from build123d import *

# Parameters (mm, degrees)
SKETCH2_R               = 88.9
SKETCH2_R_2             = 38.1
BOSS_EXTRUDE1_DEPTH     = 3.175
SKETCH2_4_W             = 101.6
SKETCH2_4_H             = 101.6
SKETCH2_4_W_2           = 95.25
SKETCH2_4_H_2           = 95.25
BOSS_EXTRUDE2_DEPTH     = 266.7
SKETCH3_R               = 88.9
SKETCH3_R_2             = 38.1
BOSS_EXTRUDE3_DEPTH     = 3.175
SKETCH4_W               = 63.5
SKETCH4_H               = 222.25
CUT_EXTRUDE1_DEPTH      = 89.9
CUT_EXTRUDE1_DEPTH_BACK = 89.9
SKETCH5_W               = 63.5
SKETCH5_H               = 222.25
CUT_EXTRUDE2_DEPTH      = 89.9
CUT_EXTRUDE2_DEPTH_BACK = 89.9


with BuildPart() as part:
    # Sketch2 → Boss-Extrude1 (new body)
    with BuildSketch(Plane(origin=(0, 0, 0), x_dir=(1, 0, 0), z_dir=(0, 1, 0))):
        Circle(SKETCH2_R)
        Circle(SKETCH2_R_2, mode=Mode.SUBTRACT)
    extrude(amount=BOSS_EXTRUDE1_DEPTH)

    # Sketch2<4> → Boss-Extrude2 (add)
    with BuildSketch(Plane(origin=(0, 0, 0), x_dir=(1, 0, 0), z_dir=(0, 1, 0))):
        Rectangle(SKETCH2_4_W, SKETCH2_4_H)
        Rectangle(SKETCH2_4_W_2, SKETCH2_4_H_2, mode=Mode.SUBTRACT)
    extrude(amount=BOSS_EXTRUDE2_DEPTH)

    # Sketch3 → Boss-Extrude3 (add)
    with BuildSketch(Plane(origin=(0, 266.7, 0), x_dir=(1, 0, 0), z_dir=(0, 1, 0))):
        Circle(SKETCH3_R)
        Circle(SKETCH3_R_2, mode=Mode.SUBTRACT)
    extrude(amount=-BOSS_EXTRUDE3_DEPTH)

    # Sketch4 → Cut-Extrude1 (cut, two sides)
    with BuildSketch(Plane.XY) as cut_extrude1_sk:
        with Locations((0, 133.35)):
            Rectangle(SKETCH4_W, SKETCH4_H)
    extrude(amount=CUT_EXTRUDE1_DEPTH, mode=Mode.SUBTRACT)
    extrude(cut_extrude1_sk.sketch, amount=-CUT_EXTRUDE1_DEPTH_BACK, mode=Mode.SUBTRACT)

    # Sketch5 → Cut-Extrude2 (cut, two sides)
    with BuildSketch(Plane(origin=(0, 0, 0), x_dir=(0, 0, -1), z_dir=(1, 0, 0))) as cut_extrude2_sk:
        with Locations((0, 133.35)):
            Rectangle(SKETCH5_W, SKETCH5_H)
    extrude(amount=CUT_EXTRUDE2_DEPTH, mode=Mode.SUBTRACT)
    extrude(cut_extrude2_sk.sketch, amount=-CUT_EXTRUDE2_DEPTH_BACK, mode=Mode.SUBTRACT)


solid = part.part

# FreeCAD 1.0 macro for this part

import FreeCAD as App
import Part
import Sketcher
from FreeCAD import Vector
Q = App.Units.Quantity

doc = App.newDocument("Part")
params = doc.addObject("Spreadsheet::Sheet", "Params")
for row, (alias, value) in enumerate([
    ("sketch1_diameter", "7 in"),
    ("sketch1_diameter2", "3 in"),
    ("pad1_length", "0.125 in"),
    ("sketch2_width", "4 in"),
    ("sketch2_width2", "3.75 in"),
    ("pad2_length", "10.5 in"),
    ("sketch3_diameter", "7 in"),
    ("sketch3_diameter2", "3 in"),
    ("pad3_length", "0.125 in"),
    ("sketch4_width", "2.5 in"),
    ("sketch4_height", "8.75 in"),
    ("sketch5_height", "2.5 in"),
    ("sketch5_width", "8.75 in"),
], start=1):
    params.set(f"A{row}", alias)
    params.set(f"B{row}", "=" + value)
    params.setAlias(f"B{row}", alias)

body = doc.addObject("PartDesign::Body", "Body")

# Sketch on XZ plane
sketch1 = body.newObject("Sketcher::SketchObject", "Sketch")
sketch1.AttachmentSupport = (doc.getObject("XZ_Plane"), [""])
sketch1.MapMode = "FlatFace"
sketch1.addGeometry([
    Part.Circle(Vector(0, 0, 0), Vector(0, 0, 1), 88.9),
    Part.Circle(Vector(0, 0, 0), Vector(0, 0, 1), 38.1),
], False)
sketch1.addConstraint([
    Sketcher.Constraint("Coincident", 0, 3, -1, 1),
    Sketcher.Constraint("Coincident", 1, 3, -1, 1),
    Sketcher.Constraint("Diameter", 0, Q("7 in")),
    Sketcher.Constraint("Diameter", 1, Q("3 in")),
])
sketch1.setExpression("Constraints[2]", "Params.sketch1_diameter")
sketch1.setExpression("Constraints[3]", "Params.sketch1_diameter2")
pad1 = body.newObject("PartDesign::Pad", "Pad")
pad1.Profile = sketch1
pad1.setExpression("Length", "Params.pad1_length")
pad1.Reversed = True

# Sketch on XZ plane
sketch2 = body.newObject("Sketcher::SketchObject", "Sketch001")
sketch2.AttachmentSupport = (doc.getObject("XZ_Plane"), [""])
sketch2.MapMode = "FlatFace"
sketch2.addGeometry([
    Part.LineSegment(Vector(-50.8, -50.8, 0), Vector(-50.8, 50.8, 0)),  # 0
    Part.LineSegment(Vector(-50.8, 50.8, 0), Vector(50.8, 50.8, 0)),  # 1
    Part.LineSegment(Vector(50.8, 50.8, 0), Vector(50.8, -50.8, 0)),  # 2
    Part.LineSegment(Vector(50.8, -50.8, 0), Vector(-50.8, -50.8, 0)),  # 3
    Part.LineSegment(Vector(47.625, 47.625, 0), Vector(-47.625, 47.625, 0)),  # 4
    Part.LineSegment(Vector(-47.625, 47.625, 0), Vector(-47.625, -47.625, 0)),  # 5
    Part.LineSegment(Vector(-47.625, -47.625, 0), Vector(47.625, -47.625, 0)),  # 6
    Part.LineSegment(Vector(47.625, -47.625, 0), Vector(47.625, 47.625, 0)),  # 7
], False)
sketch2.addConstraint([
    Sketcher.Constraint("Coincident", 0, 2, 1, 1),
    Sketcher.Constraint("Coincident", 1, 2, 2, 1),
    Sketcher.Constraint("Coincident", 2, 2, 3, 1),
    Sketcher.Constraint("Coincident", 3, 2, 0, 1),
    Sketcher.Constraint("Coincident", 4, 2, 5, 1),
    Sketcher.Constraint("Coincident", 5, 2, 6, 1),
    Sketcher.Constraint("Coincident", 6, 2, 7, 1),
    Sketcher.Constraint("Coincident", 7, 2, 4, 1),
    Sketcher.Constraint("Vertical", 0),
    Sketcher.Constraint("Horizontal", 1),
    Sketcher.Constraint("Vertical", 2),
    Sketcher.Constraint("Horizontal", 3),
    Sketcher.Constraint("Horizontal", 4),
    Sketcher.Constraint("Vertical", 5),
    Sketcher.Constraint("Horizontal", 6),
    Sketcher.Constraint("Vertical", 7),
    Sketcher.Constraint("Symmetric", 0, 2, 2, 2, -1, 1),
    Sketcher.Constraint("Symmetric", 4, 2, 6, 2, -1, 1),
    Sketcher.Constraint("Equal", 3, 0),
    Sketcher.Constraint("Equal", 6, 5),
    Sketcher.Constraint("DistanceX", 1, 1, 1, 2, Q("4 in")),
    Sketcher.Constraint("DistanceX", 4, 2, 4, 1, Q("3.75 in")),
])
sketch2.setExpression("Constraints[20]", "Params.sketch2_width")
sketch2.setExpression("Constraints[21]", "Params.sketch2_width2")
pad2 = body.newObject("PartDesign::Pad", "Pad001")
pad2.Profile = sketch2
pad2.setExpression("Length", "Params.pad2_length")
pad2.Reversed = True

# Sketch on XZ plane
sketch3 = body.newObject("Sketcher::SketchObject", "Sketch002")
sketch3.AttachmentSupport = (doc.getObject("XZ_Plane"), [""])
sketch3.MapMode = "FlatFace"
sketch3.AttachmentOffset = App.Placement(Vector(0, 0, -10.5 * 25.4), App.Rotation())
sketch3.addGeometry([
    Part.Circle(Vector(0, 0, 0), Vector(0, 0, 1), 88.9),
    Part.Circle(Vector(0, 0, 0), Vector(0, 0, 1), 38.1),
], False)
sketch3.addConstraint([
    Sketcher.Constraint("Coincident", 0, 3, -1, 1),
    Sketcher.Constraint("Coincident", 1, 3, -1, 1),
    Sketcher.Constraint("Diameter", 0, Q("7 in")),
    Sketcher.Constraint("Diameter", 1, Q("3 in")),
])
sketch3.setExpression("Constraints[2]", "Params.sketch3_diameter")
sketch3.setExpression("Constraints[3]", "Params.sketch3_diameter2")
pad3 = body.newObject("PartDesign::Pad", "Pad002")
pad3.Profile = sketch3
pad3.setExpression("Length", "Params.pad3_length")

# Sketch on XY plane
sketch4 = body.newObject("Sketcher::SketchObject", "Sketch003")
sketch4.AttachmentSupport = (doc.getObject("XY_Plane"), [""])
sketch4.MapMode = "FlatFace"
sketch4.addGeometry([
    Part.LineSegment(Vector(-31.75, 244.475, 0), Vector(-31.75, 22.225, 0)),
    Part.LineSegment(Vector(-31.75, 22.225, 0), Vector(31.75, 22.225, 0)),
    Part.LineSegment(Vector(31.75, 22.225, 0), Vector(31.75, 244.475, 0)),
    Part.LineSegment(Vector(31.75, 244.475, 0), Vector(-31.75, 244.475, 0)),
], False)
sketch4.addConstraint([
    Sketcher.Constraint("Coincident", 0, 2, 1, 1),
    Sketcher.Constraint("Coincident", 1, 2, 2, 1),
    Sketcher.Constraint("Coincident", 2, 2, 3, 1),
    Sketcher.Constraint("Coincident", 3, 2, 0, 1),
    Sketcher.Constraint("Vertical", 0),
    Sketcher.Constraint("Horizontal", 1),
    Sketcher.Constraint("Vertical", 2),
    Sketcher.Constraint("Horizontal", 3),
    Sketcher.Constraint("DistanceX", 1, 1, 1, 2, Q("2.5 in")),
    Sketcher.Constraint("DistanceY", 0, 2, 0, 1, Q("8.75 in")),
    Sketcher.Constraint("DistanceX", 0, 2, -1, 1, Q("1.25 in")),
    Sketcher.Constraint("DistanceY", -1, 1, 0, 2, Q("0.875 in")),
])
sketch4.setExpression("Constraints[8]", "Params.sketch4_width")
sketch4.setExpression("Constraints[9]", "Params.sketch4_height")
pocket1 = body.newObject("PartDesign::Pocket", "Pocket")
pocket1.Profile = sketch4
pocket1.Type = "ThroughAll"
pocket1.Midplane = True

# Sketch on YZ plane
sketch5 = body.newObject("Sketcher::SketchObject", "Sketch004")
sketch5.AttachmentSupport = (doc.getObject("YZ_Plane"), [""])
sketch5.MapMode = "FlatFace"
sketch5.addGeometry([
    Part.LineSegment(Vector(244.475, 31.75, 0), Vector(22.225, 31.75, 0)),
    Part.LineSegment(Vector(22.225, 31.75, 0), Vector(22.225, -31.75, 0)),
    Part.LineSegment(Vector(22.225, -31.75, 0), Vector(244.475, -31.75, 0)),
    Part.LineSegment(Vector(244.475, -31.75, 0), Vector(244.475, 31.75, 0)),
], False)
sketch5.addConstraint([
    Sketcher.Constraint("Coincident", 0, 2, 1, 1),
    Sketcher.Constraint("Coincident", 1, 2, 2, 1),
    Sketcher.Constraint("Coincident", 2, 2, 3, 1),
    Sketcher.Constraint("Coincident", 3, 2, 0, 1),
    Sketcher.Constraint("Horizontal", 0),
    Sketcher.Constraint("Vertical", 1),
    Sketcher.Constraint("Horizontal", 2),
    Sketcher.Constraint("Vertical", 3),
    Sketcher.Constraint("DistanceY", 1, 2, 1, 1, Q("2.5 in")),
    Sketcher.Constraint("DistanceX", 0, 2, 0, 1, Q("8.75 in")),
    Sketcher.Constraint("DistanceY", -1, 1, 0, 2, Q("1.25 in")),
    Sketcher.Constraint("DistanceX", -1, 1, 0, 2, Q("0.875 in")),
])
sketch5.setExpression("Constraints[8]", "Params.sketch5_height")
sketch5.setExpression("Constraints[9]", "Params.sketch5_width")
pocket2 = body.newObject("PartDesign::Pocket", "Pocket001")
pocket2.Profile = sketch5
pocket2.Type = "ThroughAll"
pocket2.Midplane = True

doc.recompute()
